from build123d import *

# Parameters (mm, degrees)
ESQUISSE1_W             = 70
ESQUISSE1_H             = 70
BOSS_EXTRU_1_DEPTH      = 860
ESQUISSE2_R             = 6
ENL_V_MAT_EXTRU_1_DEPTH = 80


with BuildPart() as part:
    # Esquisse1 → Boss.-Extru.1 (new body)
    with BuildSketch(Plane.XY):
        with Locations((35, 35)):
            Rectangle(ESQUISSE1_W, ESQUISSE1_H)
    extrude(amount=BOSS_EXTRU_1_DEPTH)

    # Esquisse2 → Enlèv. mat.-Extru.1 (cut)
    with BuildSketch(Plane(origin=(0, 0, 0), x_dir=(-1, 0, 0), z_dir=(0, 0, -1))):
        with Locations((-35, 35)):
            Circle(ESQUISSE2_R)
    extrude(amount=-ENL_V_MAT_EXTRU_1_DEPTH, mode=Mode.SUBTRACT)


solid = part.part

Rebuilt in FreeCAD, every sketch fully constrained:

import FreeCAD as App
import Part
import Sketcher
from FreeCAD import Vector


def add_polygon(sketch, points):
    """Adds a closed chain of lines whose ends are joined by coincident constraints."""
    first, n = sketch.GeometryCount, len(points)
    for a, b in zip(points, points[1:] + points[:1]):
        sketch.addGeometry(Part.LineSegment(App.Vector(*a, 0), App.Vector(*b, 0)), False)
    for i in range(n):
        sketch.addConstraint(Sketcher.Constraint("Coincident", first + i, 2, first + (i + 1) % n, 1))

doc = App.newDocument("Part")
params = doc.addObject("Spreadsheet::Sheet", "Params")
for row, (alias, value) in enumerate([
    ("sketch1_width", "70 mm"),
    ("pad1_length", "860 mm"),
    ("sketch2_diameter", "12 mm"),
    ("pocket1_length", "80 mm"),
], start=1):
    params.set(f"A{row}", alias)
    params.set(f"B{row}", "=" + value)
    params.setAlias(f"B{row}", alias)

body = doc.addObject("PartDesign::Body", "Body")

# Sketch on XY plane
sketch1 = body.newObject("Sketcher::SketchObject", "Sketch")
sketch1.AttachmentSupport = (doc.getObject("XY_Plane"), [""])
sketch1.MapMode = "FlatFace"
add_polygon(sketch1, [(0, 70), (0, 0), (70, 0), (70, 70)])  # lines 0-3
sketch1.addConstraint(Sketcher.Constraint("Vertical", 0))
sketch1.addConstraint(Sketcher.Constraint("Horizontal", 1))
sketch1.addConstraint(Sketcher.Constraint("Vertical", 2))
sketch1.addConstraint(Sketcher.Constraint("Horizontal", 3))
sketch1.addConstraint(Sketcher.Constraint("Coincident", 0, 2, -1, 1))
sketch1.addConstraint(Sketcher.Constraint("Equal", 3, 0))
sketch1.addConstraint(Sketcher.Constraint("DistanceX", 1, 1, 1, 2, 70.0))
sketch1.setExpression("Constraints[10]", "Params.sketch1_width")
pad1 = body.newObject("PartDesign::Pad", "Pad")
pad1.Profile = sketch1
pad1.setExpression("Length", "Params.pad1_length")

# Sketch on XY plane
sketch2 = body.newObject("Sketcher::SketchObject", "Sketch001")
sketch2.AttachmentSupport = (doc.getObject("XY_Plane"), [""])
sketch2.MapMode = "FlatFace"
sketch2.addGeometry(Part.Circle(Vector(35, 35, 0), Vector(0, 0, 1), 6), False)
sketch2.addConstraint(Sketcher.Constraint("Diameter", 0, 12.0))
sketch2.addConstraint(Sketcher.Constraint("DistanceX", -1, 1, 0, 3, 35.0))
sketch2.addConstraint(Sketcher.Constraint("DistanceY", -1, 1, 0, 3, 35.0))
sketch2.setExpression("Constraints[0]", "Params.sketch2_diameter")
pocket1 = body.newObject("PartDesign::Pocket", "Pocket")
pocket1.Profile = sketch2
pocket1.setExpression("Length", "Params.pocket1_length")
pocket1.Reversed = True

doc.recompute()
